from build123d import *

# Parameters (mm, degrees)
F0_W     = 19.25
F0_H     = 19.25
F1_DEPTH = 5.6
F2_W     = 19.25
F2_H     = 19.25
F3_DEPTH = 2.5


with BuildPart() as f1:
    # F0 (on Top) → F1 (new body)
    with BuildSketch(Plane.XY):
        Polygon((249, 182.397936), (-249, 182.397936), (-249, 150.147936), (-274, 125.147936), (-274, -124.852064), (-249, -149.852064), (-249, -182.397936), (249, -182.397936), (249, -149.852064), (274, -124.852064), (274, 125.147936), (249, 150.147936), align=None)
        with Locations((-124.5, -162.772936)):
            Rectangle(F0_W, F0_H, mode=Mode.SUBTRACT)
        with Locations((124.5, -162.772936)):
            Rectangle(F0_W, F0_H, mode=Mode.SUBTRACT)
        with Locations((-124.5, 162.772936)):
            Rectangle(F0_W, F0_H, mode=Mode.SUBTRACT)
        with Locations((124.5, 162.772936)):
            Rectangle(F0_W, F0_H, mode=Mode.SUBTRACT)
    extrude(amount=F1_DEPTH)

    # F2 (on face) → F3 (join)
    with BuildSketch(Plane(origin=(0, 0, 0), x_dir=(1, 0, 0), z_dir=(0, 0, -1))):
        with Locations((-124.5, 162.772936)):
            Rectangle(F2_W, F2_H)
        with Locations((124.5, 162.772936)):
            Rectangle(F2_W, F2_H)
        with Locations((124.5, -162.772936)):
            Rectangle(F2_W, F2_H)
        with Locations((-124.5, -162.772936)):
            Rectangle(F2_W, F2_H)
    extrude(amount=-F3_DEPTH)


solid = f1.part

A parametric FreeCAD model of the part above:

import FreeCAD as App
import Part
import Sketcher
from FreeCAD import Vector


def add_polygon(sketch, points):
    """Adds a closed chain of lines whose ends are joined by coincident constraints."""
    first, n = sketch.GeometryCount, len(points)
    for a, b in zip(points, points[1:] + points[:1]):
        sketch.addGeometry(Part.LineSegment(App.Vector(*a, 0), App.Vector(*b, 0)), False)
    for i in range(n):
        sketch.addConstraint(Sketcher.Constraint("Coincident", first + i, 2, first + (i + 1) % n, 1))

doc = App.newDocument("Part")
body = doc.addObject("PartDesign::Body", "Body")

# Sketch on XY plane
sketch1 = body.newObject("Sketcher::SketchObject", "Sketch")
sketch1.AttachmentSupport = (doc.getObject("XY_Plane"), [""])
sketch1.MapMode = "FlatFace"
add_polygon(sketch1, [(249, 182), (-249, 182), (-249, 150), (-274, 125), (-274, -125), (-249, -150), (-249, -182), (249, -182), (249, -150), (274, -125), (274, 125), (249, 150)])  # lines 0-11
add_polygon(sketch1, [(-115, -172), (-134, -172), (-134, -153), (-115, -153)])  # lines 12-15
add_polygon(sketch1, [(134, -172), (115, -172), (115, -153), (134, -153)])  # lines 16-19
add_polygon(sketch1, [(-115, 153), (-134, 153), (-134, 172), (-115, 172)])  # lines 20-23
add_polygon(sketch1, [(134, 153), (115, 153), (115, 172), (134, 172)])  # lines 24-27
sketch1.addConstraint([
    Sketcher.Constraint("Horizontal", 0),
    Sketcher.Constraint("Vertical", 1),
    Sketcher.Constraint("Vertical", 3),
    Sketcher.Constraint("Vertical", 5),
    Sketcher.Constraint("Horizontal", 6),
    Sketcher.Constraint("Vertical", 7),
    Sketcher.Constraint("Vertical", 9),
    Sketcher.Constraint("Vertical", 11),
    Sketcher.Constraint("Horizontal", 12),
    Sketcher.Constraint("Vertical", 13),
    Sketcher.Constraint("Horizontal", 14),
    Sketcher.Constraint("Vertical", 15),
    Sketcher.Constraint("Horizontal", 16),
    Sketcher.Constraint("Vertical", 17),
    Sketcher.Constraint("Horizontal", 18),
    Sketcher.Constraint("Vertical", 19),
    Sketcher.Constraint("Horizontal", 20),
    Sketcher.Constraint("Vertical", 21),
    Sketcher.Constraint("Horizontal", 22),
    Sketcher.Constraint("Vertical", 23),
    Sketcher.Constraint("Horizontal", 24),
    Sketcher.Constraint("Vertical", 25),
    Sketcher.Constraint("Horizontal", 26),
    Sketcher.Constraint("Vertical", 27),
    Sketcher.Constraint("Symmetric", 0, 2, 6, 2, -1, 1),
    Sketcher.Constraint("Symmetric", 18, 2, 20, 2, -1, 1),
    Sketcher.Constraint("Symmetric", 16, 2, 22, 2, -1, 1),
    Sketcher.Constraint("Symmetric", 14, 2, 24, 2, -1, 1),
    Sketcher.Constraint("Symmetric", 12, 2, 26, 2, -1, 1),
    Sketcher.Constraint("Symmetric", 4, 2, 7, 2, -2),
    Sketcher.Constraint("Symmetric", 3, 2, 8, 2, -2),
    Sketcher.Constraint("Symmetric", 1, 2, 10, 2, -2),
    Sketcher.Constraint("Symmetric", 15, 2, 16, 2, -2),
    Sketcher.Constraint("Symmetric", 13, 2, 18, 2, -2),
    Sketcher.Constraint("Perpendicular", 2, 4),
    Sketcher.Constraint("Perpendicular", 4, 8),
    Sketcher.Constraint("Perpendicular", 8, 10),
    Sketcher.Constraint("Equal", 26, 13),
    Sketcher.Constraint("DistanceX", 0, 2, 0, 1, 498.0),
    Sketcher.Constraint("DistanceY", 3, 2, 3, 1, 250.0),
    Sketcher.Constraint("DistanceX", 2, 2, -1, 1, 274.0),
    Sketcher.Constraint("DistanceY", 5, 2, 12, 2, 10.0),
    Sketcher.Constraint("DistanceY", 1, 2, 20, 2, 3.0),
    Sketcher.Constraint("DistanceX", 12, 2, 12, 1, 19.25),
    Sketcher.Constraint("DistanceX", 15, 2, 16, 2, 229.75),
    Sketcher.Constraint("DistanceY", 5, 2, 5, 1, 32.545872),
])
pad1 = body.newObject("PartDesign::Pad", "Pad")
pad1.Profile = sketch1
pad1.Length = 5.6

# Sketch on XY plane
sketch2 = body.newObject("Sketcher::SketchObject", "Sketch001")
sketch2.AttachmentSupport = (doc.getObject("XY_Plane"), [""])
sketch2.MapMode = "FlatFace"
add_polygon(sketch2, [(-134, -172), (-134, -153), (-115, -153), (-115, -172)])  # lines 0-3
add_polygon(sketch2, [(115, -172), (115, -153), (134, -153), (134, -172)])  # lines 4-7
add_polygon(sketch2, [(115, 153), (115, 172), (134, 172), (134, 153)])  # lines 8-11
add_polygon(sketch2, [(-134, 153), (-134, 172), (-115, 172), (-115, 153)])  # lines 12-15
sketch2.addConstraint([
    Sketcher.Constraint("Vertical", 0),
    Sketcher.Constraint("Horizontal", 1),
    Sketcher.Constraint("Vertical", 2),
    Sketcher.Constraint("Horizontal", 3),
    Sketcher.Constraint("Vertical", 4),
    Sketcher.Constraint("Horizontal", 5),
    Sketcher.Constraint("Vertical", 6),
    Sketcher.Constraint("Horizontal", 7),
    Sketcher.Constraint("Vertical", 8),
    Sketcher.Constraint("Horizontal", 9),
    Sketcher.Constraint("Vertical", 10),
    Sketcher.Constraint("Horizontal", 11),
    Sketcher.Constraint("Vertical", 12),
    Sketcher.Constraint("Horizontal", 13),
    Sketcher.Constraint("Vertical", 14),
    Sketcher.Constraint("Horizontal", 15),
    Sketcher.Constraint("Symmetric", 2, 2, 8, 2, -1, 1),
    Sketcher.Constraint("Symmetric", 0, 2, 10, 2, -1, 1),
    Sketcher.Constraint("Symmetric", 6, 2, 12, 2, -1, 1),
    Sketcher.Constraint("Symmetric", 4, 2, 14, 2, -1, 1),
    Sketcher.Constraint("Symmetric", 1, 2, 4, 2, -2),
    Sketcher.Constraint("Symmetric", 3, 2, 6, 2, -2),
    Sketcher.Constraint("Equal", 15, 0),
    Sketcher.Constraint("DistanceX", 0, 2, 4, 2, 249.0),
    Sketcher.Constraint("DistanceX", 1, 1, 1, 2, 19.25),
    Sketcher.Constraint("DistanceY", 4, 2, 8, 2, 325.545872),
])
pad2 = body.newObject("PartDesign::Pad", "Pad001")
pad2.Profile = sketch2
pad2.Length = 2.5

doc.recompute()
